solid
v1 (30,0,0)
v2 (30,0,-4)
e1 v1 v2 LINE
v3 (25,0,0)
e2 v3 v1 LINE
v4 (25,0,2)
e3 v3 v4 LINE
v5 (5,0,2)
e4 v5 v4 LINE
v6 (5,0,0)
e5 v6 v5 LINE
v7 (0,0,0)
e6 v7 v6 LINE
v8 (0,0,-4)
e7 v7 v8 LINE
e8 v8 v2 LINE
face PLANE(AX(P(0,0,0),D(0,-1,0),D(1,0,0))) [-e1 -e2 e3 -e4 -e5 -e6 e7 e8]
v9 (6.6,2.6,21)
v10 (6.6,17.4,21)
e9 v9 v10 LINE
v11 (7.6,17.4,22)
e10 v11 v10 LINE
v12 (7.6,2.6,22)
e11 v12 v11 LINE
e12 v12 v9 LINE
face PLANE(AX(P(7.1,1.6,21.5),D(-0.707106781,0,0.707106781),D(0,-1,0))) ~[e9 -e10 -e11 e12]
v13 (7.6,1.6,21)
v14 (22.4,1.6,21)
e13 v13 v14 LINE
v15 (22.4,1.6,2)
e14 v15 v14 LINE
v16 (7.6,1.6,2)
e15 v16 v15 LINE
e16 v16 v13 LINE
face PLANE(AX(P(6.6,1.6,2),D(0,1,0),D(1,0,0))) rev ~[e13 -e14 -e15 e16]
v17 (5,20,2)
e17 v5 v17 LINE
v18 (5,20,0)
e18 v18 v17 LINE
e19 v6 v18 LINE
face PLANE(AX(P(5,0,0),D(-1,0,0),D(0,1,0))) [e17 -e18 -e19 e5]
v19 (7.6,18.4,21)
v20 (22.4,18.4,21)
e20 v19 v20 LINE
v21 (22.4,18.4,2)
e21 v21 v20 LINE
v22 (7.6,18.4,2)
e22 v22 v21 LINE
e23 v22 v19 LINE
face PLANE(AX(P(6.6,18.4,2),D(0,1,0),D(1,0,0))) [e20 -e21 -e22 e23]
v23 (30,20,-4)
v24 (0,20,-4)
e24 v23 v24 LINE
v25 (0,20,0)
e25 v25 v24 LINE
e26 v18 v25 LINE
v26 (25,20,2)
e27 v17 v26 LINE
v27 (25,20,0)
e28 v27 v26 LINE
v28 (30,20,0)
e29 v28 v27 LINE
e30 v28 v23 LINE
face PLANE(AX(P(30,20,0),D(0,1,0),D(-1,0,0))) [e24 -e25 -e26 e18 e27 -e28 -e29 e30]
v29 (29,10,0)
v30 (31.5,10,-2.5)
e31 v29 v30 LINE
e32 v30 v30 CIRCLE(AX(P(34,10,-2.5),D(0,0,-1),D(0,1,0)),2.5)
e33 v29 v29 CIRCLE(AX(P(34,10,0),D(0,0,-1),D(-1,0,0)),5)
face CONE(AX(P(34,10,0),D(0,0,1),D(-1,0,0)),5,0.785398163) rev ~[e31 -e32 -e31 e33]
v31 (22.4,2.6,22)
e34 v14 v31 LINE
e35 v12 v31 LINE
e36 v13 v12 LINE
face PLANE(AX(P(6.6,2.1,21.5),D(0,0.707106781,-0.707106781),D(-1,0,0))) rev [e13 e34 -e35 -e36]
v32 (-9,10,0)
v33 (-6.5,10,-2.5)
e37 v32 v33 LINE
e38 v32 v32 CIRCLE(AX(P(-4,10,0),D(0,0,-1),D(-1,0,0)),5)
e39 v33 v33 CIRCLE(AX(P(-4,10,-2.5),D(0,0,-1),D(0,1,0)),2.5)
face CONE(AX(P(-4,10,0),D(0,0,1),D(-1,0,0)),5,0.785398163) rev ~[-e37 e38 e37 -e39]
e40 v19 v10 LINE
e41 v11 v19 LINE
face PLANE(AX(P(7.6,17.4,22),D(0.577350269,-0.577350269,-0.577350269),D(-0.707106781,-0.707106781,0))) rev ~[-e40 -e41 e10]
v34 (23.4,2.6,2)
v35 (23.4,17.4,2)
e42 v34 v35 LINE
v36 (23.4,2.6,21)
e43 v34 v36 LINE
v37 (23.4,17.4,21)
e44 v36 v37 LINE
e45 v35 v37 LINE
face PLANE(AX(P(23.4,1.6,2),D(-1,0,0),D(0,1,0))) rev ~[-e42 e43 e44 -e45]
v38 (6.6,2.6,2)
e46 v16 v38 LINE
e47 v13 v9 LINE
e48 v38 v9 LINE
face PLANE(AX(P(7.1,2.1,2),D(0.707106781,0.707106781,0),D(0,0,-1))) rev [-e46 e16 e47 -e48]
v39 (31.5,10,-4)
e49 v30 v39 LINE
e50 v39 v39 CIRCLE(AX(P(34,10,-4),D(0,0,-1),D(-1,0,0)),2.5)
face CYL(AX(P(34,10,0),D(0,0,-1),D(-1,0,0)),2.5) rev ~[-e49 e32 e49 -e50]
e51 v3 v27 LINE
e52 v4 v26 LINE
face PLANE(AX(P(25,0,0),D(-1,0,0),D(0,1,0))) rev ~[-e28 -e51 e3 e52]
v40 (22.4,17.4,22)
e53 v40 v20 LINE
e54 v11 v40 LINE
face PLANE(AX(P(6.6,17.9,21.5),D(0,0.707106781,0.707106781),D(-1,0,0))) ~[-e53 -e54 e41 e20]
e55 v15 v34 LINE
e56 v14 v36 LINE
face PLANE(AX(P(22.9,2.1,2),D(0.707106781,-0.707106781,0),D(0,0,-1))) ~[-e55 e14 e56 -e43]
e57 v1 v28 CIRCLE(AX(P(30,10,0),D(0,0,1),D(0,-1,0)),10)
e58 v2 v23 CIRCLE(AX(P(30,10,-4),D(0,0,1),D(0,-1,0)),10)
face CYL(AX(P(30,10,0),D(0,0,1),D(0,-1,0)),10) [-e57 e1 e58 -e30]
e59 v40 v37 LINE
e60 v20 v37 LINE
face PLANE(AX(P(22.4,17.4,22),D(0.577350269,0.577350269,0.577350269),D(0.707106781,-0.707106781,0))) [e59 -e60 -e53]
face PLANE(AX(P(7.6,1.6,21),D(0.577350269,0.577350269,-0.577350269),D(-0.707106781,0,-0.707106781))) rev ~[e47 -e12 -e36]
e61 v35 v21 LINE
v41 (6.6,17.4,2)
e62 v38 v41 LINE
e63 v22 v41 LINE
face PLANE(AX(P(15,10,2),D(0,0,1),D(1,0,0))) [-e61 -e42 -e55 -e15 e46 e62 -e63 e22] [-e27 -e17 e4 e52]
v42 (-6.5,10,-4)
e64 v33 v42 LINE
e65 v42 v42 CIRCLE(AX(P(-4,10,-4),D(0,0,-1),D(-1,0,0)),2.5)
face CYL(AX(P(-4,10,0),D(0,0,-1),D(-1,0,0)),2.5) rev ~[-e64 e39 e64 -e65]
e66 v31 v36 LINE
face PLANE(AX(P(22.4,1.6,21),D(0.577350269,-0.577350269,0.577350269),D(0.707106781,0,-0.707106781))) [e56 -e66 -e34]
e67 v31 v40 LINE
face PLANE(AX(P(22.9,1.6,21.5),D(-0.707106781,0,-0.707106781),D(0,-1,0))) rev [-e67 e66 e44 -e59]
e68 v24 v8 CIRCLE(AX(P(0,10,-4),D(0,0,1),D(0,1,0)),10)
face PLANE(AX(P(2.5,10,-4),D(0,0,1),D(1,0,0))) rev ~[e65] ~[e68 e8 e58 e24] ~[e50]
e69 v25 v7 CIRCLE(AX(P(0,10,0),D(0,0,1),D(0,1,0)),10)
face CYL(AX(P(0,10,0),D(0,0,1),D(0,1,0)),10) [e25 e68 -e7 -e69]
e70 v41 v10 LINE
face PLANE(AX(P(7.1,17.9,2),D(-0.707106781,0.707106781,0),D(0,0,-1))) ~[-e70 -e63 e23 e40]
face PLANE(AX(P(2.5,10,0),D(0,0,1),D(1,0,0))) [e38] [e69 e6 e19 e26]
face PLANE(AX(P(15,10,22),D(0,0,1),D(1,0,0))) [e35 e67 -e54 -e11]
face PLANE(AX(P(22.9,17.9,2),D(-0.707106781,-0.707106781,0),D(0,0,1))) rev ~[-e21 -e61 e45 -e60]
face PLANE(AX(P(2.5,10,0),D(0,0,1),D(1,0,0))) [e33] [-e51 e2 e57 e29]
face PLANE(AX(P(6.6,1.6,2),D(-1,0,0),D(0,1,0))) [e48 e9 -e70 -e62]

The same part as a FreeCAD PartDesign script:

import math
import FreeCAD as App
import Part
import Sketcher
from FreeCAD import Vector


def edges_at(feature, points):
    """Names of the edges that pass closest to the given points."""
    edges = feature.Shape.Edges
    near = lambda p: min(range(len(edges)), key=lambda i: edges[i].distToShape(Part.Vertex(*p))[0])
    return sorted({f"Edge{near(p) + 1}" for p in points})


def add_polygon(sketch, points):
    """Adds a closed chain of lines whose ends are joined by coincident constraints."""
    first, n = sketch.GeometryCount, len(points)
    for a, b in zip(points, points[1:] + points[:1]):
        sketch.addGeometry(Part.LineSegment(App.Vector(*a, 0), App.Vector(*b, 0)), False)
    for i in range(n):
        sketch.addConstraint(Sketcher.Constraint("Coincident", first + i, 2, first + (i + 1) % n, 1))

doc = App.newDocument("Part")
params = doc.addObject("Spreadsheet::Sheet", "Params")
for row, (alias, value) in enumerate([
    ("sketch1_width", "20 mm"),
    ("pad1_length", "2 mm"),
    ("sketch2_radius", "10 mm"),
    ("sketch2_width", "30 mm"),
    ("pad2_length", "4 mm"),
    ("sketch3_width", "16.8 mm"),
    ("pad3_length", "20 mm"),
    ("chamfer_size", "1 mm"),
    ("sketch4_diameter", "5 mm"),
    ("hole_diameter", "5 mm"),
    ("hole_csink_diameter", "10 mm"),
], start=1):
    params.set(f"A{row}", alias)
    params.set(f"B{row}", "=" + value)
    params.setAlias(f"B{row}", alias)

body = doc.addObject("PartDesign::Body", "Body")

sketch1 = doc.addObject("Sketcher::SketchObject", "Sketch")
body.addObject(sketch1)
sketch1.AttachmentSupport = (doc.XY_Plane, [""])
sketch1.MapMode = "FlatFace"
add_polygon(sketch1, [(5, 20), (5, 0), (25, 0), (25, 20)])
sketch1.addConstraint([
    Sketcher.Constraint("Vertical", 0),
    Sketcher.Constraint("Horizontal", 1),
    Sketcher.Constraint("Vertical", 2),
    Sketcher.Constraint("Horizontal", 3),
    Sketcher.Constraint("PointOnObject", 0, 2, -1),
    Sketcher.Constraint("Equal", 3, 0),
    Sketcher.Constraint("DistanceX", 1, 1, 1, 2, 20.0),
    Sketcher.Constraint("DistanceX", -1, 1, 0, 2, 5.0),
])
sketch1.setExpression("Constraints[10]", "Params.sketch1_width")
pad1 = doc.addObject("PartDesign::Pad", "Pad")
body.addObject(pad1)
pad1.Profile = sketch1
pad1.setExpression("Length", "Params.pad1_length")

sketch2 = doc.addObject("Sketcher::SketchObject", "Sketch001")
body.addObject(sketch2)
sketch2.AttachmentSupport = (doc.XY_Plane, [""])
sketch2.MapMode = "FlatFace"
sketch2.addGeometry([
    Part.LineSegment(Vector(0, 0, 0), Vector(30, 0, 0)),
    Part.ArcOfCircle(Part.Circle(Vector(30, 10, 0), Vector(0, 0, 1), 10), math.radians(-90), math.radians(90)),
    Part.LineSegment(Vector(30, 20, 0), Vector(0, 20, 0)),
    Part.ArcOfCircle(Part.Circle(Vector(0, 10, 0), Vector(0, 0, 1), 10), math.radians(90), math.radians(270)),
], False)
sketch2.addConstraint([
    Sketcher.Constraint("Tangent", 0, 2, 1, 1),
    Sketcher.Constraint("Tangent", 1, 2, 2, 1),
    Sketcher.Constraint("Tangent", 2, 2, 3, 1),
    Sketcher.Constraint("Tangent", 3, 2, 0, 1),
    Sketcher.Constraint("Horizontal", 0),
    Sketcher.Constraint("Horizontal", 2),
    Sketcher.Constraint("Coincident", 3, 2, -1, 1),
    Sketcher.Constraint("Radius", 1, 10.0),
    Sketcher.Constraint("DistanceX", 0, 1, 0, 2, 30.0),
])
sketch2.setExpression("Constraints[7]", "Params.sketch2_radius")
sketch2.setExpression("Constraints[8]", "Params.sketch2_width")
pad2 = doc.addObject("PartDesign::Pad", "Pad001")
body.addObject(pad2)
pad2.Profile = sketch2
pad2.setExpression("Length", "Params.pad2_length")
pad2.Reversed = True

sketch3 = doc.addObject("Sketcher::SketchObject", "Sketch002")
body.addObject(sketch3)
sketch3.AttachmentSupport = (doc.XY_Plane, [""])
sketch3.MapMode = "FlatFace"
sketch3.AttachmentOffset = App.Placement(Vector(0, 0, 2), App.Rotation())
add_polygon(sketch3, [(6.6, 18.4), (6.6, 1.6), (23.4, 1.6), (23.4, 18.4)])
sketch3.addConstraint([
    Sketcher.Constraint("Vertical", 0),
    Sketcher.Constraint("Horizontal", 1),
    Sketcher.Constraint("Vertical", 2),
    Sketcher.Constraint("Horizontal", 3),
    Sketcher.Constraint("Equal", 3, 0),
    Sketcher.Constraint("DistanceX", 1, 1, 1, 2, 16.8),
    Sketcher.Constraint("DistanceX", -1, 1, 0, 2, 6.6),
    Sketcher.Constraint("DistanceY", -1, 1, 0, 2, 1.6),
])
sketch3.setExpression("Constraints[9]", "Params.sketch3_width")
pad3 = doc.addObject("PartDesign::Pad", "Pad002")
body.addObject(pad3)
pad3.Profile = sketch3
pad3.setExpression("Length", "Params.pad3_length")
doc.recompute()

chamfer = doc.addObject("PartDesign::Chamfer", "Chamfer")
body.addObject(chamfer)
chamfer.Base = (pad3, edges_at(pad3, [
    (23.4, 18.4, 12),
    (6.6, 18.4, 12),
    (15, 18.4, 22),
    (6.6, 10, 22),
    (23.4, 10, 22),
    (15, 1.6, 22),
    (23.4, 1.6, 12),
    (6.6, 1.6, 12),
]))
chamfer.setExpression("Size", "Params.chamfer_size")

sketch4 = doc.addObject("Sketcher::SketchObject", "Sketch003")
body.addObject(sketch4)
sketch4.AttachmentSupport = (doc.XY_Plane, [""])
sketch4.MapMode = "FlatFace"
sketch4.addGeometry([
    Part.Circle(Vector(-4, 10, 0), Vector(0, 0, 1), 2.5),
    Part.Circle(Vector(34, 10, 0), Vector(0, 0, 1), 2.5),
], False)
sketch4.addConstraint([
    Sketcher.Constraint("Equal", 0, 1),
    Sketcher.Constraint("Horizontal", 0, 3, 1, 3),
    Sketcher.Constraint("Diameter", 0, 5.0),
    Sketcher.Constraint("DistanceX", 0, 3, -1, 1, 4.0),
    Sketcher.Constraint("DistanceY", -1, 1, 0, 3, 10.0),
    Sketcher.Constraint("DistanceX", -1, 1, 1, 3, 34.0),
])
sketch4.setExpression("Constraints[2]", "Params.sketch4_diameter")
doc.recompute()
hole = doc.addObject("PartDesign::Hole", "Hole")
body.addObject(hole)
hole.Profile = sketch4
hole.ThreadType = "None"
hole.setExpression("Diameter", "Params.hole_diameter")
hole.DepthType = "ThroughAll"
hole.HoleCutType = "Countersink"
hole.setExpression("HoleCutDiameter", "Params.hole_csink_diameter")
hole.HoleCutCountersinkAngle = 90

doc.recompute()
